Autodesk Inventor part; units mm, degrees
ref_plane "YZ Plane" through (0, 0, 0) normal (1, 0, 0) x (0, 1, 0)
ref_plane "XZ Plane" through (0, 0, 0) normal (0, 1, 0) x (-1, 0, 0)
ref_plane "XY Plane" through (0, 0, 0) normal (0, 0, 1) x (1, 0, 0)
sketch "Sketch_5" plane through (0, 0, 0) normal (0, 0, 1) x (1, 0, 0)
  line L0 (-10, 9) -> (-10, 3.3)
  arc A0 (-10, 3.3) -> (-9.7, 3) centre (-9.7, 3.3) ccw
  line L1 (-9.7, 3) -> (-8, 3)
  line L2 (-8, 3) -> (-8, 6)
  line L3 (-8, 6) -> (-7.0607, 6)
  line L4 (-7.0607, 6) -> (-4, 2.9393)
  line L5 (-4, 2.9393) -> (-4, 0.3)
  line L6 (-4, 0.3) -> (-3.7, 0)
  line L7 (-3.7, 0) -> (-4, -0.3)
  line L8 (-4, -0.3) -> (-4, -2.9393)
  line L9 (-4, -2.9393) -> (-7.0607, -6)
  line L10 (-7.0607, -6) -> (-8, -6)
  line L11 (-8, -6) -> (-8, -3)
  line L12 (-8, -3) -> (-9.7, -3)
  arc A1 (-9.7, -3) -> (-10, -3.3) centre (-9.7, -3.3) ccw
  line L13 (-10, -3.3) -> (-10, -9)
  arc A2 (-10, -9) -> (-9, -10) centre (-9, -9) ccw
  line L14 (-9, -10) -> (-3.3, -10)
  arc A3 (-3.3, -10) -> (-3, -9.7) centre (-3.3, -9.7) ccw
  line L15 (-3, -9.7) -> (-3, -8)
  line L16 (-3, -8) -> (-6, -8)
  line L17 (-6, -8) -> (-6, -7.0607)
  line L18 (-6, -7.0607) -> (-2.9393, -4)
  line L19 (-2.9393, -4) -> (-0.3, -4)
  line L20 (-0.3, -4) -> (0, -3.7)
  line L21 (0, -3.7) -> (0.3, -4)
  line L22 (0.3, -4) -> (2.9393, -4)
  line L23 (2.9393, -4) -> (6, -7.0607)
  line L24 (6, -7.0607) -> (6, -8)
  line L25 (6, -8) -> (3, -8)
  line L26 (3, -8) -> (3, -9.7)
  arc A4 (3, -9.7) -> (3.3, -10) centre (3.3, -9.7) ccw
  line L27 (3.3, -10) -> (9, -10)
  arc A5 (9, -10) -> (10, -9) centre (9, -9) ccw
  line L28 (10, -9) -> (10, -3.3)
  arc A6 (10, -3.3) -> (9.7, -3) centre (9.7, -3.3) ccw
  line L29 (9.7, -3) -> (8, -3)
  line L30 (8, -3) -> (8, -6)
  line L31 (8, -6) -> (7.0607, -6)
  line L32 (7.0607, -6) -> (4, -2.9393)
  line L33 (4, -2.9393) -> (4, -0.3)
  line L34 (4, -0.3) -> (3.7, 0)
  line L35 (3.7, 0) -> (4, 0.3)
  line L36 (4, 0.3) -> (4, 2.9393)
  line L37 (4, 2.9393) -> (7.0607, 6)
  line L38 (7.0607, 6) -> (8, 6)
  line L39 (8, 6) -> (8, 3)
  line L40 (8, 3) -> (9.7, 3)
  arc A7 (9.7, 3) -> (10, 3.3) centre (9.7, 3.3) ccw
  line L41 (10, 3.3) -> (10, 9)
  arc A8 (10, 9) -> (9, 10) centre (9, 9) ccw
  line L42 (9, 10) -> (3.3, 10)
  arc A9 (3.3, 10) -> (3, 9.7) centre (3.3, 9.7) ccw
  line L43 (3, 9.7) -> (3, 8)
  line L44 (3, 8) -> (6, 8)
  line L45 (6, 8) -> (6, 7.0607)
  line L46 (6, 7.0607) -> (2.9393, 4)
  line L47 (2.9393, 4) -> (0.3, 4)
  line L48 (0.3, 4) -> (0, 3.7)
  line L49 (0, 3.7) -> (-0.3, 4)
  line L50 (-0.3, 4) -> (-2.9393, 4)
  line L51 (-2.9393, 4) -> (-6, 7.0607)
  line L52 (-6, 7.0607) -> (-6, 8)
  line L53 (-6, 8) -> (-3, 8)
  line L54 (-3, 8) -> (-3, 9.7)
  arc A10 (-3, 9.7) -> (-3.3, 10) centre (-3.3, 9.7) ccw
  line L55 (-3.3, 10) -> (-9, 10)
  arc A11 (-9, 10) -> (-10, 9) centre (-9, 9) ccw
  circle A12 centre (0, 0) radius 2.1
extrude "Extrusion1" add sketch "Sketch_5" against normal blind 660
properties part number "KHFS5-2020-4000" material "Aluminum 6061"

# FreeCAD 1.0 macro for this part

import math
import FreeCAD as App
import Part
import Sketcher
from FreeCAD import Vector
Q = App.Units.Quantity

doc = App.newDocument("Part")
body = doc.addObject("PartDesign::Body", "Body")

sketch1 = doc.addObject("Sketcher::SketchObject", "Sketch")
body.addObject(sketch1)
sketch1.AttachmentSupport = (doc.XY_Plane, [""])
sketch1.MapMode = "FlatFace"
sketch1.addGeometry(Part.ArcOfCircle(Part.Circle(Vector(-9, 9, 0), Vector(0, 0, 1), 1), math.radians(90), math.radians(180)), False)
sketch1.addGeometry(Part.LineSegment(Vector(-10, 9, 0), Vector(-10, 3.3, 0)), False)
sketch1.addGeometry(Part.ArcOfCircle(Part.Circle(Vector(-9.7, 3.3, 0), Vector(0, 0, 1), 0.3), math.radians(180), math.radians(270)), False)
sketch1.addGeometry(Part.LineSegment(Vector(-9.7, 3, 0), Vector(-8, 3, 0)), False)
sketch1.addGeometry(Part.LineSegment(Vector(-8, 3, 0), Vector(-8, 6, 0)), False)
sketch1.addGeometry(Part.LineSegment(Vector(-8, 6, 0), Vector(-7.06, 6, 0)), False)
sketch1.addGeometry(Part.LineSegment(Vector(-7.06, 6, 0), Vector(-4, 2.94, 0)), False)
sketch1.addGeometry(Part.LineSegment(Vector(-4, 2.94, 0), Vector(-4, 0.3, 0)), False)
sketch1.addGeometry(Part.LineSegment(Vector(-4, 0.3, 0), Vector(-3.7, 0, 0)), False)
sketch1.addGeometry(Part.LineSegment(Vector(-3.7, 0, 0), Vector(-4, -0.3, 0)), False)
sketch1.addGeometry(Part.LineSegment(Vector(-4, -0.3, 0), Vector(-4, -2.94, 0)), False)
sketch1.addGeometry(Part.LineSegment(Vector(-4, -2.94, 0), Vector(-7.06, -6, 0)), False)
sketch1.addGeometry(Part.LineSegment(Vector(-7.06, -6, 0), Vector(-8, -6, 0)), False)
sketch1.addGeometry(Part.LineSegment(Vector(-8, -6, 0), Vector(-8, -3, 0)), False)
sketch1.addGeometry(Part.LineSegment(Vector(-8, -3, 0), Vector(-9.7, -3, 0)), False)
sketch1.addGeometry(Part.ArcOfCircle(Part.Circle(Vector(-9.7, -3.3, 0), Vector(0, 0, 1), 0.3), math.radians(90), math.radians(180)), False)
sketch1.addGeometry(Part.LineSegment(Vector(-10, -3.3, 0), Vector(-10, -9, 0)), False)
sketch1.addGeometry(Part.ArcOfCircle(Part.Circle(Vector(-9, -9, 0), Vector(0, 0, 1), 1), math.radians(180), math.radians(270)), False)
sketch1.addGeometry(Part.LineSegment(Vector(-9, -10, 0), Vector(-3.3, -10, 0)), False)
sketch1.addGeometry(Part.ArcOfCircle(Part.Circle(Vector(-3.3, -9.7, 0), Vector(0, 0, 1), 0.3), math.radians(-90), math.radians(0)), False)
sketch1.addGeometry(Part.LineSegment(Vector(-3, -9.7, 0), Vector(-3, -8, 0)), False)
sketch1.addGeometry(Part.LineSegment(Vector(-3, -8, 0), Vector(-6, -8, 0)), False)
sketch1.addGeometry(Part.LineSegment(Vector(-6, -8, 0), Vector(-6, -7.06, 0)), False)
sketch1.addGeometry(Part.LineSegment(Vector(-6, -7.06, 0), Vector(-2.94, -4, 0)), False)
sketch1.addGeometry(Part.LineSegment(Vector(-2.94, -4, 0), Vector(-0.3, -4, 0)), False)
sketch1.addGeometry(Part.LineSegment(Vector(-0.3, -4, 0), Vector(0, -3.7, 0)), False)
sketch1.addGeometry(Part.LineSegment(Vector(0, -3.7, 0), Vector(0.3, -4, 0)), False)
sketch1.addGeometry(Part.LineSegment(Vector(0.3, -4, 0), Vector(2.94, -4, 0)), False)
sketch1.addGeometry(Part.LineSegment(Vector(2.94, -4, 0), Vector(6, -7.06, 0)), False)
sketch1.addGeometry(Part.LineSegment(Vector(6, -7.06, 0), Vector(6, -8, 0)), False)
sketch1.addGeometry(Part.LineSegment(Vector(6, -8, 0), Vector(3, -8, 0)), False)
sketch1.addGeometry(Part.LineSegment(Vector(3, -8, 0), Vector(3, -9.7, 0)), False)
sketch1.addGeometry(Part.ArcOfCircle(Part.Circle(Vector(3.3, -9.7, 0), Vector(0, 0, 1), 0.3), math.radians(180), math.radians(270)), False)
sketch1.addGeometry(Part.LineSegment(Vector(3.3, -10, 0), Vector(9, -10, 0)), False)
sketch1.addGeometry(Part.ArcOfCircle(Part.Circle(Vector(9, -9, 0), Vector(0, 0, 1), 1), math.radians(-90), math.radians(0)), False)
sketch1.addGeometry(Part.LineSegment(Vector(10, -9, 0), Vector(10, -3.3, 0)), False)
sketch1.addGeometry(Part.ArcOfCircle(Part.Circle(Vector(9.7, -3.3, 0), Vector(0, 0, 1), 0.3), math.radians(0), math.radians(90)), False)
sketch1.addGeometry(Part.LineSegment(Vector(9.7, -3, 0), Vector(8, -3, 0)), False)
sketch1.addGeometry(Part.LineSegment(Vector(8, -3, 0), Vector(8, -6, 0)), False)
sketch1.addGeometry(Part.LineSegment(Vector(8, -6, 0), Vector(7.06, -6, 0)), False)
sketch1.addGeometry(Part.LineSegment(Vector(7.06, -6, 0), Vector(4, -2.94, 0)), False)
sketch1.addGeometry(Part.LineSegment(Vector(4, -2.94, 0), Vector(4, -0.3, 0)), False)
sketch1.addGeometry(Part.LineSegment(Vector(4, -0.3, 0), Vector(3.7, 0, 0)), False)
sketch1.addGeometry(Part.LineSegment(Vector(3.7, 0, 0), Vector(4, 0.3, 0)), False)
sketch1.addGeometry(Part.LineSegment(Vector(4, 0.3, 0), Vector(4, 2.94, 0)), False)
sketch1.addGeometry(Part.LineSegment(Vector(4, 2.94, 0), Vector(7.06, 6, 0)), False)
sketch1.addGeometry(Part.LineSegment(Vector(7.06, 6, 0), Vector(8, 6, 0)), False)
sketch1.addGeometry(Part.LineSegment(Vector(8, 6, 0), Vector(8, 3, 0)), False)
sketch1.addGeometry(Part.LineSegment(Vector(8, 3, 0), Vector(9.7, 3, 0)), False)
sketch1.addGeometry(Part.ArcOfCircle(Part.Circle(Vector(9.7, 3.3, 0), Vector(0, 0, 1), 0.3), math.radians(-90), math.radians(0)), False)
sketch1.addGeometry(Part.LineSegment(Vector(10, 3.3, 0), Vector(10, 9, 0)), False)
sketch1.addGeometry(Part.ArcOfCircle(Part.Circle(Vector(9, 9, 0), Vector(0, 0, 1), 1), math.radians(0), math.radians(90)), False)
sketch1.addGeometry(Part.LineSegment(Vector(9, 10, 0), Vector(3.3, 10, 0)), False)
sketch1.addGeometry(Part.ArcOfCircle(Part.Circle(Vector(3.3, 9.7, 0), Vector(0, 0, 1), 0.3), math.radians(90), math.radians(180)), False)
sketch1.addGeometry(Part.LineSegment(Vector(3, 9.7, 0), Vector(3, 8, 0)), False)
sketch1.addGeometry(Part.LineSegment(Vector(3, 8, 0), Vector(6, 8, 0)), False)
sketch1.addGeometry(Part.LineSegment(Vector(6, 8, 0), Vector(6, 7.06, 0)), False)
sketch1.addGeometry(Part.LineSegment(Vector(6, 7.06, 0), Vector(2.94, 4, 0)), False)
sketch1.addGeometry(Part.LineSegment(Vector(2.94, 4, 0), Vector(0.3, 4, 0)), False)
sketch1.addGeometry(Part.LineSegment(Vector(0.3, 4, 0), Vector(0, 3.7, 0)), False)
sketch1.addGeometry(Part.LineSegment(Vector(0, 3.7, 0), Vector(-0.3, 4, 0)), False)
sketch1.addGeometry(Part.LineSegment(Vector(-0.3, 4, 0), Vector(-2.94, 4, 0)), False)
sketch1.addGeometry(Part.LineSegment(Vector(-2.94, 4, 0), Vector(-6, 7.06, 0)), False)
sketch1.addGeometry(Part.LineSegment(Vector(-6, 7.06, 0), Vector(-6, 8, 0)), False)
sketch1.addGeometry(Part.LineSegment(Vector(-6, 8, 0), Vector(-3, 8, 0)), False)
sketch1.addGeometry(Part.LineSegment(Vector(-3, 8, 0), Vector(-3, 9.7, 0)), False)
sketch1.addGeometry(Part.ArcOfCircle(Part.Circle(Vector(-3.3, 9.7, 0), Vector(0, 0, 1), 0.3), math.radians(0), math.radians(90)), False)
sketch1.addGeometry(Part.LineSegment(Vector(-3.3, 10, 0), Vector(-9, 10, 0)), False)
sketch1.addGeometry(Part.Circle(Vector(0, 0, 0), Vector(0, 0, 1), 2.1), False)
sketch1.addConstraint(Sketcher.Constraint("Tangent", 0, 2, 1, 1))
sketch1.addConstraint(Sketcher.Constraint("Tangent", 1, 2, 2, 1))
sketch1.addConstraint(Sketcher.Constraint("Tangent", 2, 2, 3, 1))
sketch1.addConstraint(Sketcher.Constraint("Coincident", 3, 2, 4, 1))
sketch1.addConstraint(Sketcher.Constraint("Coincident", 4, 2, 5, 1))
sketch1.addConstraint(Sketcher.Constraint("Coincident", 5, 2, 6, 1))
sketch1.addConstraint(Sketcher.Constraint("Coincident", 6, 2, 7, 1))
sketch1.addConstraint(Sketcher.Constraint("Coincident", 7, 2, 8, 1))
sketch1.addConstraint(Sketcher.Constraint("Coincident", 8, 2, 9, 1))
sketch1.addConstraint(Sketcher.Constraint("Coincident", 9, 2, 10, 1))
sketch1.addConstraint(Sketcher.Constraint("Coincident", 10, 2, 11, 1))
sketch1.addConstraint(Sketcher.Constraint("Coincident", 11, 2, 12, 1))
sketch1.addConstraint(Sketcher.Constraint("Coincident", 12, 2, 13, 1))
sketch1.addConstraint(Sketcher.Constraint("Coincident", 13, 2, 14, 1))
sketch1.addConstraint(Sketcher.Constraint("Tangent", 14, 2, 15, 1))
sketch1.addConstraint(Sketcher.Constraint("Tangent", 15, 2, 16, 1))
sketch1.addConstraint(Sketcher.Constraint("Tangent", 16, 2, 17, 1))
sketch1.addConstraint(Sketcher.Constraint("Tangent", 17, 2, 18, 1))
sketch1.addConstraint(Sketcher.Constraint("Tangent", 18, 2, 19, 1))
sketch1.addConstraint(Sketcher.Constraint("Tangent", 19, 2, 20, 1))
sketch1.addConstraint(Sketcher.Constraint("Coincident", 20, 2, 21, 1))
sketch1.addConstraint(Sketcher.Constraint("Coincident", 21, 2, 22, 1))
sketch1.addConstraint(Sketcher.Constraint("Coincident", 22, 2, 23, 1))
sketch1.addConstraint(Sketcher.Constraint("Coincident", 23, 2, 24, 1))
sketch1.addConstraint(Sketcher.Constraint("Coincident", 24, 2, 25, 1))
sketch1.addConstraint(Sketcher.Constraint("Coincident", 25, 2, 26, 1))
sketch1.addConstraint(Sketcher.Constraint("Coincident", 26, 2, 27, 1))
sketch1.addConstraint(Sketcher.Constraint("Coincident", 27, 2, 28, 1))
sketch1.addConstraint(Sketcher.Constraint("Coincident", 28, 2, 29, 1))
sketch1.addConstraint(Sketcher.Constraint("Coincident", 29, 2, 30, 1))
sketch1.addConstraint(Sketcher.Constraint("Coincident", 30, 2, 31, 1))
sketch1.addConstraint(Sketcher.Constraint("Tangent", 31, 2, 32, 1))
sketch1.addConstraint(Sketcher.Constraint("Tangent", 32, 2, 33, 1))
sketch1.addConstraint(Sketcher.Constraint("Tangent", 33, 2, 34, 1))
sketch1.addConstraint(Sketcher.Constraint("Tangent", 34, 2, 35, 1))
sketch1.addConstraint(Sketcher.Constraint("Tangent", 35, 2, 36, 1))
sketch1.addConstraint(Sketcher.Constraint("Tangent", 36, 2, 37, 1))
sketch1.addConstraint(Sketcher.Constraint("Coincident", 37, 2, 38, 1))
sketch1.addConstraint(Sketcher.Constraint("Coincident", 38, 2, 39, 1))
sketch1.addConstraint(Sketcher.Constraint("Coincident", 39, 2, 40, 1))
sketch1.addConstraint(Sketcher.Constraint("Coincident", 40, 2, 41, 1))
sketch1.addConstraint(Sketcher.Constraint("Coincident", 41, 2, 42, 1))
sketch1.addConstraint(Sketcher.Constraint("Coincident", 42, 2, 43, 1))
sketch1.addConstraint(Sketcher.Constraint("Coincident", 43, 2, 44, 1))
sketch1.addConstraint(Sketcher.Constraint("Coincident", 44, 2, 45, 1))
sketch1.addConstraint(Sketcher.Constraint("Coincident", 45, 2, 46, 1))
sketch1.addConstraint(Sketcher.Constraint("Coincident", 46, 2, 47, 1))
sketch1.addConstraint(Sketcher.Constraint("Coincident", 47, 2, 48, 1))
sketch1.addConstraint(Sketcher.Constraint("Tangent", 48, 2, 49, 1))
sketch1.addConstraint(Sketcher.Constraint("Tangent", 49, 2, 50, 1))
sketch1.addConstraint(Sketcher.Constraint("Tangent", 50, 2, 51, 1))
sketch1.addConstraint(Sketcher.Constraint("Tangent", 51, 2, 52, 1))
sketch1.addConstraint(Sketcher.Constraint("Tangent", 52, 2, 53, 1))
sketch1.addConstraint(Sketcher.Constraint("Tangent", 53, 2, 54, 1))
sketch1.addConstraint(Sketcher.Constraint("Coincident", 54, 2, 55, 1))
sketch1.addConstraint(Sketcher.Constraint("Coincident", 55, 2, 56, 1))
sketch1.addConstraint(Sketcher.Constraint("Coincident", 56, 2, 57, 1))
sketch1.addConstraint(Sketcher.Constraint("Coincident", 57, 2, 58, 1))
sketch1.addConstraint(Sketcher.Constraint("Coincident", 58, 2, 59, 1))
sketch1.addConstraint(Sketcher.Constraint("Coincident", 59, 2, 60, 1))
sketch1.addConstraint(Sketcher.Constraint("Coincident", 60, 2, 61, 1))
sketch1.addConstraint(Sketcher.Constraint("Coincident", 61, 2, 62, 1))
sketch1.addConstraint(Sketcher.Constraint("Coincident", 62, 2, 63, 1))
sketch1.addConstraint(Sketcher.Constraint("Coincident", 63, 2, 64, 1))
sketch1.addConstraint(Sketcher.Constraint("Coincident", 64, 2, 65, 1))
sketch1.addConstraint(Sketcher.Constraint("Tangent", 65, 2, 66, 1))
sketch1.addConstraint(Sketcher.Constraint("Tangent", 66, 2, 67, 1))
sketch1.addConstraint(Sketcher.Constraint("Tangent", 67, 2, 0, 1))
sketch1.addConstraint(Sketcher.Constraint("Vertical", 1))
sketch1.addConstraint(Sketcher.Constraint("Horizontal", 3))
sketch1.addConstraint(Sketcher.Constraint("Vertical", 4))
sketch1.addConstraint(Sketcher.Constraint("Horizontal", 5))
sketch1.addConstraint(Sketcher.Constraint("Vertical", 7))
sketch1.addConstraint(Sketcher.Constraint("Vertical", 10))
sketch1.addConstraint(Sketcher.Constraint("Horizontal", 12))
sketch1.addConstraint(Sketcher.Constraint("Vertical", 13))
sketch1.addConstraint(Sketcher.Constraint("Horizontal", 14))
sketch1.addConstraint(Sketcher.Constraint("Vertical", 16))
sketch1.addConstraint(Sketcher.Constraint("Horizontal", 18))
sketch1.addConstraint(Sketcher.Constraint("Vertical", 20))
sketch1.addConstraint(Sketcher.Constraint("Horizontal", 21))
sketch1.addConstraint(Sketcher.Constraint("Vertical", 22))
sketch1.addConstraint(Sketcher.Constraint("Horizontal", 24))
sketch1.addConstraint(Sketcher.Constraint("Horizontal", 27))
sketch1.addConstraint(Sketcher.Constraint("Vertical", 29))
sketch1.addConstraint(Sketcher.Constraint("Horizontal", 30))
sketch1.addConstraint(Sketcher.Constraint("Vertical", 31))
sketch1.addConstraint(Sketcher.Constraint("Horizontal", 33))
sketch1.addConstraint(Sketcher.Constraint("Vertical", 35))
sketch1.addConstraint(Sketcher.Constraint("Horizontal", 37))
sketch1.addConstraint(Sketcher.Constraint("Vertical", 38))
sketch1.addConstraint(Sketcher.Constraint("Horizontal", 39))
sketch1.addConstraint(Sketcher.Constraint("Vertical", 41))
sketch1.addConstraint(Sketcher.Constraint("Vertical", 44))
sketch1.addConstraint(Sketcher.Constraint("Horizontal", 46))
sketch1.addConstraint(Sketcher.Constraint("Vertical", 47))
sketch1.addConstraint(Sketcher.Constraint("Horizontal", 48))
sketch1.addConstraint(Sketcher.Constraint("Vertical", 50))
sketch1.addConstraint(Sketcher.Constraint("Horizontal", 52))
sketch1.addConstraint(Sketcher.Constraint("Vertical", 54))
sketch1.addConstraint(Sketcher.Constraint("Horizontal", 55))
sketch1.addConstraint(Sketcher.Constraint("Vertical", 56))
sketch1.addConstraint(Sketcher.Constraint("Horizontal", 58))
sketch1.addConstraint(Sketcher.Constraint("Horizontal", 61))
sketch1.addConstraint(Sketcher.Constraint("Vertical", 63))
sketch1.addConstraint(Sketcher.Constraint("Horizontal", 64))
sketch1.addConstraint(Sketcher.Constraint("Vertical", 65))
sketch1.addConstraint(Sketcher.Constraint("Horizontal", 67))
sketch1.addConstraint(Sketcher.Constraint("Coincident", 68, 3, -1, 1))
sketch1.addConstraint(Sketcher.Constraint("Equal", 2, 15))
sketch1.addConstraint(Sketcher.Constraint("Equal", 0, 17))
sketch1.addConstraint(Sketcher.Constraint("Equal", 15, 19))
sketch1.addConstraint(Sketcher.Constraint("Equal", 19, 32))
sketch1.addConstraint(Sketcher.Constraint("Equal", 17, 34))
sketch1.addConstraint(Sketcher.Constraint("Equal", 32, 36))
sketch1.addConstraint(Sketcher.Constraint("Equal", 36, 49))
sketch1.addConstraint(Sketcher.Constraint("Equal", 34, 51))
sketch1.addConstraint(Sketcher.Constraint("Equal", 49, 53))
sketch1.addConstraint(Sketcher.Constraint("Equal", 53, 66))
sketch1.addConstraint(Sketcher.Constraint("Symmetric", 0, 3, 34, 3, -1, 1))
sketch1.addConstraint(Sketcher.Constraint("Symmetric", 15, 3, 49, 3, -1, 1))
sketch1.addConstraint(Sketcher.Constraint("Symmetric", 19, 3, 53, 3, -1, 1))
sketch1.addConstraint(Sketcher.Constraint("Symmetric", 3, 2, 37, 2, -1, 1))
sketch1.addConstraint(Sketcher.Constraint("Symmetric", 5, 2, 39, 2, -1, 1))
sketch1.addConstraint(Sketcher.Constraint("Symmetric", 6, 2, 40, 2, -1, 1))
sketch1.addConstraint(Sketcher.Constraint("Symmetric", 8, 2, 42, 2, -1, 1))
sketch1.addConstraint(Sketcher.Constraint("Symmetric", 9, 2, 43, 2, -1, 1))
sketch1.addConstraint(Sketcher.Constraint("Symmetric", 11, 2, 45, 2, -1, 1))
sketch1.addConstraint(Sketcher.Constraint("Symmetric", 21, 2, 55, 2, -1, 1))
sketch1.addConstraint(Sketcher.Constraint("Symmetric", 23, 2, 57, 2, -1, 1))
sketch1.addConstraint(Sketcher.Constraint("Symmetric", 25, 2, 59, 2, -1, 1))
sketch1.addConstraint(Sketcher.Constraint("Symmetric", 26, 2, 60, 2, -1, 1))
sketch1.addConstraint(Sketcher.Constraint("Symmetric", 28, 2, 62, 2, -1, 1))
sketch1.addConstraint(Sketcher.Constraint("Symmetric", 30, 2, 64, 2, -1, 1))
sketch1.addConstraint(Sketcher.Constraint("Symmetric", 19, 3, 32, 3, -2))
sketch1.addConstraint(Sketcher.Constraint("Symmetric", 15, 3, 36, 3, -2))
sketch1.addConstraint(Sketcher.Constraint("Symmetric", 24, 2, 26, 2, -2))
sketch1.addConstraint(Sketcher.Constraint("Symmetric", 22, 2, 28, 2, -2))
sketch1.addConstraint(Sketcher.Constraint("Symmetric", 12, 2, 38, 2, -2))
sketch1.addConstraint(Sketcher.Constraint("Symmetric", 10, 2, 40, 2, -2))
sketch1.addConstraint(Sketcher.Constraint("PointOnObject", 8, 2, -1))
sketch1.addConstraint(Sketcher.Constraint("PointOnObject", 25, 2, -2))
sketch1.addConstraint(Sketcher.Constraint("Parallel", 6, 8))
sketch1.addConstraint(Sketcher.Constraint("Perpendicular", 8, 9))
sketch1.addConstraint(Sketcher.Constraint("Parallel", 9, 11))
sketch1.addConstraint(Sketcher.Constraint("Parallel", 11, 23))
sketch1.addConstraint(Sketcher.Constraint("Parallel", 23, 25))
sketch1.addConstraint(Sketcher.Constraint("Perpendicular", 25, 26))
sketch1.addConstraint(Sketcher.Constraint("Parallel", 26, 28))
sketch1.addConstraint(Sketcher.Constraint("Parallel", 40, 42))
sketch1.addConstraint(Sketcher.Constraint("Parallel", 43, 45))
sketch1.addConstraint(Sketcher.Constraint("Parallel", 45, 57))
sketch1.addConstraint(Sketcher.Constraint("Parallel", 57, 59))
sketch1.addConstraint(Sketcher.Constraint("Parallel", 60, 62))
sketch1.addConstraint(Sketcher.Constraint("Horizontal", 21, 2, 29, 2))
sketch1.addConstraint(Sketcher.Constraint("Vertical", 38, 2, 46, 2))
sketch1.addConstraint(Sketcher.Constraint("Equal", 67, 1))
sketch1.addConstraint(Sketcher.Constraint("Equal", 64, 4))
sketch1.addConstraint(Sketcher.Constraint("Equal", 61, 7))
sketch1.addConstraint(Sketcher.Constraint("Equal", 48, 20))
sketch1.addConstraint(Sketcher.Constraint("Equal", 46, 22))
sketch1.addConstraint(Sketcher.Constraint("Equal", 11, 23))
sketch1.addConstraint(Sketcher.Constraint("Equal", 9, 25))
sketch1.addConstraint(Sketcher.Constraint("Radius", 0, Q("1 mm")))
sketch1.addConstraint(Sketcher.Constraint("Diameter", 68, Q("4.2 mm")))
sketch1.addConstraint(Sketcher.Constraint("Radius", 2, Q("0.3 mm")))
sketch1.addConstraint(Sketcher.Constraint("DistanceX", 21, 2, 21, 1, Q("3 mm")))
sketch1.addConstraint(Sketcher.Constraint("DistanceX", 3, 1, 3, 2, Q("1.7 mm")))
sketch1.addConstraint(Sketcher.Constraint("DistanceX", 18, 1, 18, 2, Q("5.7 mm")))
sketch1.addConstraint(Sketcher.Constraint("DistanceX", 0, 3, -1, 1, Q("9 mm")))
sketch1.addConstraint(Sketcher.Constraint("DistanceX", 6, 2, -1, 1, Q("4 mm")))
sketch1.addConstraint(Sketcher.Constraint("DistanceY", -1, 1, 7, 2, Q("0.3 mm")))
sketch1.addConstraint(Sketcher.Constraint("DistanceX", 5, 1, 5, 2, Q("0.9393 mm")))
pad1 = doc.addObject("PartDesign::Pad", "Pad")
body.addObject(pad1)
pad1.Profile = sketch1
pad1.Length = 660
pad1.Reversed = True

doc.recompute()
